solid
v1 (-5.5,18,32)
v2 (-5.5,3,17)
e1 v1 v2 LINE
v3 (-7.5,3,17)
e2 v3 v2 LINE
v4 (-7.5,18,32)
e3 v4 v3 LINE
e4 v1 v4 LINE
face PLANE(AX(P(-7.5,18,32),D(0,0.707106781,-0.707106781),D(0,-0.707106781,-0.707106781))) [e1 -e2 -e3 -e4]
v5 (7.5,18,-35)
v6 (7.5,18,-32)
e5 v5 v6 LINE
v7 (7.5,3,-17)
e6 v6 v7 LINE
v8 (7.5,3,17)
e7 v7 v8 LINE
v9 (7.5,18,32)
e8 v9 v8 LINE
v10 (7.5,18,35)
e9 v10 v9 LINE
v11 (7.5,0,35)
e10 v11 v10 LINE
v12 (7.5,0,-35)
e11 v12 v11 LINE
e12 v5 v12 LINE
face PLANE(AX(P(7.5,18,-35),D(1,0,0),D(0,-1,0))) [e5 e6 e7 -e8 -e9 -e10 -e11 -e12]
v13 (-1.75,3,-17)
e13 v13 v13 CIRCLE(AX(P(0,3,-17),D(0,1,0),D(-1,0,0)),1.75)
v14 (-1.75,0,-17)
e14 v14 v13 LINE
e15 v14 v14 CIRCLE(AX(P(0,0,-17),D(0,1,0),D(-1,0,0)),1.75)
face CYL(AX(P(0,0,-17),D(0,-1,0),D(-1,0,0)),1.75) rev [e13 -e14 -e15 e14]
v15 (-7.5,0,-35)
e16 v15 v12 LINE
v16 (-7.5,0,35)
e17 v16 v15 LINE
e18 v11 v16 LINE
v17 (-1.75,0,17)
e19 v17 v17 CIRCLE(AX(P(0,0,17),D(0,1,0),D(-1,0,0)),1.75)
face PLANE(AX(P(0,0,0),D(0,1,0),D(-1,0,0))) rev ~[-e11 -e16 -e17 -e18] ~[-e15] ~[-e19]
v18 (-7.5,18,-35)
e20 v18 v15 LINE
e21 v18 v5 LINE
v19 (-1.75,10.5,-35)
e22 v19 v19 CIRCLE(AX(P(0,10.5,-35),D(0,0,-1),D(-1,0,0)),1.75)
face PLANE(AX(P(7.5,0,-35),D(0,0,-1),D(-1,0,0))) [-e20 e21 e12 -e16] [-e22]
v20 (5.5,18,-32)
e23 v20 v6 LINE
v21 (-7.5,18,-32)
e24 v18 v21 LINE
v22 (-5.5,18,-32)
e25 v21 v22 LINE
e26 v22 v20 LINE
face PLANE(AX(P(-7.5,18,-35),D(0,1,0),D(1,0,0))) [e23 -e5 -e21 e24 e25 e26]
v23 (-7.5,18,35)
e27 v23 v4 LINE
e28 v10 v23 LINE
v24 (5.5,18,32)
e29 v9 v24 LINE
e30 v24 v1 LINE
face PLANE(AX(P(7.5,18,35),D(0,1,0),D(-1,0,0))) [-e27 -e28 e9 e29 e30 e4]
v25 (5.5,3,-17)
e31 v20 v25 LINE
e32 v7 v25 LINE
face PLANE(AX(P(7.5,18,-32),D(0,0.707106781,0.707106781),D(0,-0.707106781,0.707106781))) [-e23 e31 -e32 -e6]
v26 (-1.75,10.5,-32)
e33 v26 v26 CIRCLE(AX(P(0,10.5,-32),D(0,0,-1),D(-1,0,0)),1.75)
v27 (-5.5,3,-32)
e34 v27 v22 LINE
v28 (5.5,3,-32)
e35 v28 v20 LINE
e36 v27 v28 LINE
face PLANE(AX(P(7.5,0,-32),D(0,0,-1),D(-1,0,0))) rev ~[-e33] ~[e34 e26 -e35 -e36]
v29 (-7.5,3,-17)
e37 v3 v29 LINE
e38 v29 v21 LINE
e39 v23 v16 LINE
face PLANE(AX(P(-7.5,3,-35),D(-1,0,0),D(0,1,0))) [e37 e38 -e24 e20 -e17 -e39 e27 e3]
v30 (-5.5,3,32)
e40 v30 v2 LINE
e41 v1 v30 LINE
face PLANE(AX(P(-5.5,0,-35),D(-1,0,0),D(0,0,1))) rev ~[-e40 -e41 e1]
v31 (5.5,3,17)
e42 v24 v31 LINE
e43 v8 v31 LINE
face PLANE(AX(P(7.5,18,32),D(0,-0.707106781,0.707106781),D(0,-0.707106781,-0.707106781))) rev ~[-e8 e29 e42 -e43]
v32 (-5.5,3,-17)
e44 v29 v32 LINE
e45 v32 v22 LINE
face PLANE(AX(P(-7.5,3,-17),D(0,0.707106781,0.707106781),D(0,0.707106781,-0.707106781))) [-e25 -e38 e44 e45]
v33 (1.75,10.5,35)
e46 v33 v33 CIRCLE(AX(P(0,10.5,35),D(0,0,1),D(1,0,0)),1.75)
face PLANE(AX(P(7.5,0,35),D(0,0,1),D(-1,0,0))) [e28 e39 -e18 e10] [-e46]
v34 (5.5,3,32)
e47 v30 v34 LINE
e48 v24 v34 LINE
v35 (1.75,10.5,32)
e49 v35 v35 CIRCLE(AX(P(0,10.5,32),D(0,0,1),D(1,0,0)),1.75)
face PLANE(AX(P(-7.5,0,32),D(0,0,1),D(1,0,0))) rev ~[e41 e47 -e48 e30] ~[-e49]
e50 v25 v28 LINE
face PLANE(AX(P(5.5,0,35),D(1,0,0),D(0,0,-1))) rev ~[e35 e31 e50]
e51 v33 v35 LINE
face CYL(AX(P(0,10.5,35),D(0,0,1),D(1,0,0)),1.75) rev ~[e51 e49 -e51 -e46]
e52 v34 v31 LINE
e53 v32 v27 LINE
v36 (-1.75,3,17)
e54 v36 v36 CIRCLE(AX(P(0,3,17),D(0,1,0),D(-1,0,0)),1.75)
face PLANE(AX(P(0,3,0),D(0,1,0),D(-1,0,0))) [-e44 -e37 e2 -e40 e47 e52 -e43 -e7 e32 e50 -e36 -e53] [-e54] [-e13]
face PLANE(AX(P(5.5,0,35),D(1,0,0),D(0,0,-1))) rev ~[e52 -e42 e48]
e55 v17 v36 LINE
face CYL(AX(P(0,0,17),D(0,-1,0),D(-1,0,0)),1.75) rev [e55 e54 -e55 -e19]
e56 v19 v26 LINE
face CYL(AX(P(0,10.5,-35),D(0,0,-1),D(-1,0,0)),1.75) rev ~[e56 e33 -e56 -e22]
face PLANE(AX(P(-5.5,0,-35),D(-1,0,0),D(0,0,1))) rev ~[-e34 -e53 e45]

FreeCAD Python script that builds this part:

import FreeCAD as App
import Part
import Sketcher

V = App.Vector
Q = App.Units.Quantity

doc = App.newDocument("Part")
params = doc.addObject("Spreadsheet::Sheet", "Params")
for row, (alias, value) in enumerate([
    ("sketch1_diameter", "3.5 mm"),
    ("sketch1_width", "15 mm"),
    ("sketch1_height", "70 mm"),
    ("pad1_length", "3 mm"),
    ("sketch2_diameter", "3.5 mm"),
    ("sketch2_width", "15 mm"),
    ("pad2_length", "3 mm"),
    ("sketch3_diameter", "3.5 mm"),
    ("sketch3_width", "15 mm"),
    ("pad3_length", "3 mm"),
    ("sketch4_width", "15 mm"),
    ("pad4_length", "2 mm"),
    ("sketch5_width", "15 mm"),
    ("pad5_length", "2 mm"),
], start=1):
    params.set(f"A{row}", alias)
    params.set(f"B{row}", "=" + value)
    params.setAlias(f"B{row}", alias)

body = doc.addObject("PartDesign::Body", "Body")

# Sketch on XZ plane
sketch1 = body.newObject("Sketcher::SketchObject", "Sketch")
sketch1.AttachmentSupport = (doc.getObject("XZ_Plane"), [""])
sketch1.MapMode = "FlatFace"
sketch1.addGeometry([
    Part.LineSegment(V(-7.5, 35, 0), V(7.5, 35, 0)),  # 0
    Part.LineSegment(V(7.5, 35, 0), V(7.5, -35, 0)),  # 1
    Part.LineSegment(V(7.5, -35, 0), V(-7.5, -35, 0)),  # 2
    Part.LineSegment(V(-7.5, -35, 0), V(-7.5, 35, 0)),  # 3
    Part.Circle(V(0, -17, 0), V(0, 0, 1), 1.8),  # 4
    Part.Circle(V(0, 17, 0), V(0, 0, 1), 1.8),  # 5
], False)
sketch1.addConstraint([
    Sketcher.Constraint("Coincident", 0, 2, 1, 1),
    Sketcher.Constraint("Coincident", 1, 2, 2, 1),
    Sketcher.Constraint("Coincident", 2, 2, 3, 1),
    Sketcher.Constraint("Coincident", 3, 2, 0, 1),
    Sketcher.Constraint("Horizontal", 0),
    Sketcher.Constraint("Vertical", 1),
    Sketcher.Constraint("Horizontal", 2),
    Sketcher.Constraint("Vertical", 3),
    Sketcher.Constraint("Equal", 4, 5),
    Sketcher.Constraint("Symmetric", 4, 3, 5, 3, -1, 1),
    Sketcher.Constraint("Symmetric", 0, 2, 2, 2, -1, 1),
    Sketcher.Constraint("PointOnObject", 4, 3, -2),
    Sketcher.Constraint("Diameter", 4, Q("3.5 mm")),
    Sketcher.Constraint("DistanceX", 0, 1, 0, 2, Q("15 mm")),
    Sketcher.Constraint("DistanceY", 1, 2, 1, 1, Q("70 mm")),
    Sketcher.Constraint("DistanceY", 5, 3, 0, 2, Q("18 mm")),
])
sketch1.setExpression("Constraints[12]", "Params.sketch1_diameter")
sketch1.setExpression("Constraints[13]", "Params.sketch1_width")
sketch1.setExpression("Constraints[14]", "Params.sketch1_height")
pad1 = body.newObject("PartDesign::Pad", "Pad")
pad1.Profile = sketch1
pad1.setExpression("Length", "Params.pad1_length")
pad1.Reversed = True

# Sketch on XY plane
sketch2 = body.newObject("Sketcher::SketchObject", "Sketch001")
sketch2.AttachmentSupport = (doc.getObject("XY_Plane"), [""])
sketch2.MapMode = "FlatFace"
sketch2.AttachmentOffset = App.Placement(V(0, 0, 35), App.Rotation())
sketch2.addGeometry([
    Part.LineSegment(V(-7.5, 18, 0), V(-7.5, 3, 0)),  # 0
    Part.LineSegment(V(-7.5, 3, 0), V(7.5, 3, 0)),  # 1
    Part.LineSegment(V(7.5, 3, 0), V(7.5, 18, 0)),  # 2
    Part.LineSegment(V(7.5, 18, 0), V(-7.5, 18, 0)),  # 3
    Part.Circle(V(0, 10.5, 0), V(0, 0, 1), 1.8),  # 4
], False)
sketch2.addConstraint([
    Sketcher.Constraint("Coincident", 0, 2, 1, 1),
    Sketcher.Constraint("Coincident", 1, 2, 2, 1),
    Sketcher.Constraint("Coincident", 2, 2, 3, 1),
    Sketcher.Constraint("Coincident", 3, 2, 0, 1),
    Sketcher.Constraint("Vertical", 0),
    Sketcher.Constraint("Horizontal", 1),
    Sketcher.Constraint("Vertical", 2),
    Sketcher.Constraint("Horizontal", 3),
    Sketcher.Constraint("PointOnObject", 4, 3, -2),
    Sketcher.Constraint("Equal", 3, 0),
    Sketcher.Constraint("Diameter", 4, Q("3.5 mm")),
    Sketcher.Constraint("DistanceX", 1, 1, 1, 2, Q("15 mm")),
    Sketcher.Constraint("DistanceY", -1, 1, 0, 2, Q("3 mm")),
    Sketcher.Constraint("DistanceY", -1, 1, 4, 3, Q("10.5 mm")),
    Sketcher.Constraint("DistanceX", 0, 2, -1, 1, Q("7.5 mm")),
])
sketch2.setExpression("Constraints[10]", "Params.sketch2_diameter")
sketch2.setExpression("Constraints[11]", "Params.sketch2_width")
pad2 = body.newObject("PartDesign::Pad", "Pad001")
pad2.Profile = sketch2
pad2.setExpression("Length", "Params.pad2_length")
pad2.Reversed = True

# Sketch on XY plane
sketch3 = body.newObject("Sketcher::SketchObject", "Sketch002")
sketch3.AttachmentSupport = (doc.getObject("XY_Plane"), [""])
sketch3.MapMode = "FlatFace"
sketch3.AttachmentOffset = App.Placement(V(0, 0, -35), App.Rotation())
sketch3.addGeometry([
    Part.LineSegment(V(-7.5, 3, 0), V(-7.5, 18, 0)),  # 0
    Part.LineSegment(V(-7.5, 18, 0), V(7.5, 18, 0)),  # 1
    Part.LineSegment(V(7.5, 18, 0), V(7.5, 3, 0)),  # 2
    Part.LineSegment(V(7.5, 3, 0), V(-7.5, 3, 0)),  # 3
    Part.Circle(V(0, 10.5, 0), V(0, 0, 1), 1.8),  # 4
], False)
sketch3.addConstraint([
    Sketcher.Constraint("Coincident", 0, 2, 1, 1),
    Sketcher.Constraint("Coincident", 1, 2, 2, 1),
    Sketcher.Constraint("Coincident", 2, 2, 3, 1),
    Sketcher.Constraint("Coincident", 3, 2, 0, 1),
    Sketcher.Constraint("Vertical", 0),
    Sketcher.Constraint("Horizontal", 1),
    Sketcher.Constraint("Vertical", 2),
    Sketcher.Constraint("Horizontal", 3),
    Sketcher.Constraint("PointOnObject", 4, 3, -2),
    Sketcher.Constraint("Equal", 3, 0),
    Sketcher.Constraint("Diameter", 4, Q("3.5 mm")),
    Sketcher.Constraint("DistanceX", 1, 1, 1, 2, Q("15 mm")),
    Sketcher.Constraint("DistanceY", -1, 1, 0, 2, Q("18 mm")),
    Sketcher.Constraint("DistanceY", -1, 1, 4, 3, Q("10.5 mm")),
    Sketcher.Constraint("DistanceX", 0, 2, -1, 1, Q("7.5 mm")),
])
sketch3.setExpression("Constraints[10]", "Params.sketch3_diameter")
sketch3.setExpression("Constraints[11]", "Params.sketch3_width")
pad3 = body.newObject("PartDesign::Pad", "Pad002")
pad3.Profile = sketch3
pad3.setExpression("Length", "Params.pad3_length")

# Sketch on YZ plane
sketch4 = body.newObject("Sketcher::SketchObject", "Sketch003")
sketch4.AttachmentSupport = (doc.getObject("YZ_Plane"), [""])
sketch4.MapMode = "FlatFace"
sketch4.AttachmentOffset = App.Placement(V(0, 0, 7.5), App.Rotation())
sketch4.addGeometry([
    Part.LineSegment(V(3, 17, 0), V(18, 32, 0)),  # 0
    Part.LineSegment(V(18, 32, 0), V(3, 32, 0)),  # 1
    Part.LineSegment(V(3, 32, 0), V(3, 17, 0)),  # 2
    Part.LineSegment(V(3, -32, 0), V(18, -32, 0)),  # 3
    Part.LineSegment(V(18, -32, 0), V(3, -17, 0)),  # 4
    Part.LineSegment(V(3, -17, 0), V(3, -32, 0)),  # 5
], False)
sketch4.addConstraint([
    Sketcher.Constraint("Coincident", 0, 2, 1, 1),
    Sketcher.Constraint("Coincident", 1, 2, 2, 1),
    Sketcher.Constraint("Coincident", 2, 2, 0, 1),
    Sketcher.Constraint("Coincident", 3, 2, 4, 1),
    Sketcher.Constraint("Coincident", 4, 2, 5, 1),
    Sketcher.Constraint("Coincident", 5, 2, 3, 1),
    Sketcher.Constraint("Horizontal", 1),
    Sketcher.Constraint("Vertical", 2),
    Sketcher.Constraint("Horizontal", 3),
    Sketcher.Constraint("Vertical", 5),
    Sketcher.Constraint("Symmetric", 0, 2, 3, 2, -1),
    Sketcher.Constraint("Symmetric", 2, 2, 4, 2, -1),
    Sketcher.Constraint("Perpendicular", 0, 4),
    Sketcher.Constraint("DistanceX", 1, 2, 1, 1, Q("15 mm")),
    Sketcher.Constraint("DistanceX", -1, 1, 0, 2, Q("18 mm")),
    Sketcher.Constraint("DistanceY", -1, 1, 0, 2, Q("32 mm")),
])
sketch4.setExpression("Constraints[13]", "Params.sketch4_width")
pad4 = body.newObject("PartDesign::Pad", "Pad003")
pad4.Profile = sketch4
pad4.setExpression("Length", "Params.pad4_length")
pad4.Reversed = True

# Sketch on YZ plane
sketch5 = body.newObject("Sketcher::SketchObject", "Sketch004")
sketch5.AttachmentSupport = (doc.getObject("YZ_Plane"), [""])
sketch5.MapMode = "FlatFace"
sketch5.AttachmentOffset = App.Placement(V(0, 0, -7.5), App.Rotation())
sketch5.addGeometry([
    Part.LineSegment(V(3, -32, 0), V(3, -17, 0)),  # 0
    Part.LineSegment(V(3, -17, 0), V(18, -32, 0)),  # 1
    Part.LineSegment(V(18, -32, 0), V(3, -32, 0)),  # 2
    Part.LineSegment(V(3, 17, 0), V(3, 32, 0)),  # 3
    Part.LineSegment(V(3, 32, 0), V(18, 32, 0)),  # 4
    Part.LineSegment(V(18, 32, 0), V(3, 17, 0)),  # 5
], False)
sketch5.addConstraint([
    Sketcher.Constraint("Coincident", 0, 2, 1, 1),
    Sketcher.Constraint("Coincident", 1, 2, 2, 1),
    Sketcher.Constraint("Coincident", 2, 2, 0, 1),
    Sketcher.Constraint("Coincident", 3, 2, 4, 1),
    Sketcher.Constraint("Coincident", 4, 2, 5, 1),
    Sketcher.Constraint("Coincident", 5, 2, 3, 1),
    Sketcher.Constraint("Vertical", 0),
    Sketcher.Constraint("Horizontal", 2),
    Sketcher.Constraint("Vertical", 3),
    Sketcher.Constraint("Horizontal", 4),
    Sketcher.Constraint("Symmetric", 2, 2, 3, 2, -1),
    Sketcher.Constraint("Perpendicular", 1, 5),
    Sketcher.Constraint("Vertical", 1, 2, 4, 2),
    Sketcher.Constraint("Equal", 4, 0),
    Sketcher.Constraint("DistanceX", 2, 2, 2, 1, Q("15 mm")),
    Sketcher.Constraint("DistanceX", -1, 1, 0, 2, Q("3 mm")),
    Sketcher.Constraint("DistanceY", 0, 2, -1, 1, Q("17 mm")),
])
sketch5.setExpression("Constraints[14]", "Params.sketch5_width")
pad5 = body.newObject("PartDesign::Pad", "Pad004")
pad5.Profile = sketch5
pad5.setExpression("Length", "Params.pad5_length")

doc.recompute()
